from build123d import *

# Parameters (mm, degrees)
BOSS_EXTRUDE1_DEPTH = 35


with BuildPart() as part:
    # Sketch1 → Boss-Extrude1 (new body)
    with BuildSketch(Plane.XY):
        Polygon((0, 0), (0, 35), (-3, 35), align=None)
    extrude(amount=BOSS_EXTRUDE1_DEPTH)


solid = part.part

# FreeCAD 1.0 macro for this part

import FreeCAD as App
import Part
import Sketcher
from FreeCAD import Vector

doc = App.newDocument("Part")
params = doc.addObject("Spreadsheet::Sheet", "Params")
for row, (alias, value) in enumerate([
    ("sketch1_width", "3 mm"),
    ("sketch1_height", "35 mm"),
    ("pad1_length", "35 mm"),
], start=1):
    params.set(f"A{row}", alias)
    params.set(f"B{row}", "=" + value)
    params.setAlias(f"B{row}", alias)

body = doc.addObject("PartDesign::Body", "Body")

sketch1 = doc.addObject("Sketcher::SketchObject", "Sketch")
body.addObject(sketch1)
sketch1.AttachmentSupport = (doc.XY_Plane, [""])
sketch1.MapMode = "FlatFace"
sketch1.addGeometry([
    Part.LineSegment(Vector(0, 0, 0), Vector(0, 35, 0)),
    Part.LineSegment(Vector(0, 35, 0), Vector(-3, 35, 0)),
    Part.LineSegment(Vector(-3, 35, 0), Vector(0, 0, 0)),
], False)
sketch1.addConstraint([
    Sketcher.Constraint("Coincident", 0, 2, 1, 1),
    Sketcher.Constraint("Coincident", 1, 2, 2, 1),
    Sketcher.Constraint("Coincident", 2, 2, 0, 1),
    Sketcher.Constraint("Vertical", 0),
    Sketcher.Constraint("Horizontal", 1),
    Sketcher.Constraint("Coincident", 2, 2, -1, 1),
    Sketcher.Constraint("DistanceX", 1, 2, 1, 1, 3.0),
    Sketcher.Constraint("DistanceY", 0, 1, 0, 2, 35.0),
])
sketch1.setExpression("Constraints[6]", "Params.sketch1_width")
sketch1.setExpression("Constraints[7]", "Params.sketch1_height")
pad1 = doc.addObject("PartDesign::Pad", "Pad")
body.addObject(pad1)
pad1.Profile = sketch1
pad1.setExpression("Length", "Params.pad1_length")

doc.recompute()
